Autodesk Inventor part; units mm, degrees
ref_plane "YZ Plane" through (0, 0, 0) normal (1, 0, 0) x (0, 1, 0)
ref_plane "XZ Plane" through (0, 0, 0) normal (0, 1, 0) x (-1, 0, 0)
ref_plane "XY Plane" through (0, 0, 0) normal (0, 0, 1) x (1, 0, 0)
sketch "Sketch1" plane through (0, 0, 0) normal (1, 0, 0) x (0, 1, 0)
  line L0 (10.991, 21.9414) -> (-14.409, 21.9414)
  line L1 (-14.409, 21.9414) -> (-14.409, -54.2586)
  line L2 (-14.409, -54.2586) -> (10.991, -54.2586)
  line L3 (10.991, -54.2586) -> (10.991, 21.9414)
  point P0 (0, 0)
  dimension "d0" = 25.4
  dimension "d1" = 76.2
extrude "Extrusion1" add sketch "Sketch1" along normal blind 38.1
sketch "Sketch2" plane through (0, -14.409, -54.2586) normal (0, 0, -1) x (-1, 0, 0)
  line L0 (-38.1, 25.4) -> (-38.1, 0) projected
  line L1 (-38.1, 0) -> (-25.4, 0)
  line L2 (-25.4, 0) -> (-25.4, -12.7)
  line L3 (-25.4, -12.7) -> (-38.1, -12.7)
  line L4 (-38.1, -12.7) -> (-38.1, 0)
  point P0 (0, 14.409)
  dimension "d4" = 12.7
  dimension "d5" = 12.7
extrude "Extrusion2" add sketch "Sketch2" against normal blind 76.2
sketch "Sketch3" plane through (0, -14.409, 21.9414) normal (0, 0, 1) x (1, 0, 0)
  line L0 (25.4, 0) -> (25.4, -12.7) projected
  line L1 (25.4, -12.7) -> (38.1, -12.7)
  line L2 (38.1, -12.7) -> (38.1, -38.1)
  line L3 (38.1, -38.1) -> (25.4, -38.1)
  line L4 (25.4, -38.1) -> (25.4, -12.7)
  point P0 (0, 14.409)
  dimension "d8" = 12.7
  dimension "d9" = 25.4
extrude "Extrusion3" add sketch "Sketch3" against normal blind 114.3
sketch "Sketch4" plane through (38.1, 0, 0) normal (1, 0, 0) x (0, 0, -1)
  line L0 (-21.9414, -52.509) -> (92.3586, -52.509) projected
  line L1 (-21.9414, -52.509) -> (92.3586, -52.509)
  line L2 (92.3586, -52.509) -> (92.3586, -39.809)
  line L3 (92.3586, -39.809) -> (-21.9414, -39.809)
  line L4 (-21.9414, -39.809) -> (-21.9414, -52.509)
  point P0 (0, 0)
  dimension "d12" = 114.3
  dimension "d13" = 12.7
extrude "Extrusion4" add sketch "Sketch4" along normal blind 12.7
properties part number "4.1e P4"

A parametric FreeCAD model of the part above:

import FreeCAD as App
import Part
import Sketcher
Q = App.Units.Quantity

doc = App.newDocument("Part")
params = doc.addObject("Spreadsheet::Sheet", "Params")
for row, (alias, value) in enumerate([
    ("sketch1_width", "1 in"),
    ("sketch1_height", "3 in"),
    ("pad1_length", "1.5 in"),
    ("sketch2_width", "0.5 in"),
    ("pad2_length", "3 in"),
    ("sketch3_height", "1 in"),
    ("sketch3_width", "0.5 in"),
    ("pad3_length", "4.5 in"),
    ("sketch4_width", "0.5 in"),
    ("sketch4_height", "4.5 in"),
    ("pad4_length", "0.5 in"),
], start=1):
    params.set(f"A{row}", alias)
    params.set(f"B{row}", "=" + value)
    params.setAlias(f"B{row}", alias)

body = doc.addObject("PartDesign::Body", "Body")

# Sketch on YZ plane
sketch1 = body.newObject("Sketcher::SketchObject", "Sketch")
sketch1.AttachmentSupport = (doc.getObject("YZ_Plane"), [""])
sketch1.MapMode = "FlatFace"
sketch1.addGeometry([
    Part.LineSegment(App.Vector(11, -54, 0), App.Vector(11, 22, 0)),
    Part.LineSegment(App.Vector(11, 22, 0), App.Vector(-14, 22, 0)),
    Part.LineSegment(App.Vector(-14, 22, 0), App.Vector(-14, -54, 0)),
    Part.LineSegment(App.Vector(-14, -54, 0), App.Vector(11, -54, 0)),
], False)
sketch1.addConstraint([
    Sketcher.Constraint("Coincident", 0, 2, 1, 1),
    Sketcher.Constraint("Coincident", 1, 2, 2, 1),
    Sketcher.Constraint("Coincident", 2, 2, 3, 1),
    Sketcher.Constraint("Coincident", 3, 2, 0, 1),
    Sketcher.Constraint("Vertical", 0),
    Sketcher.Constraint("Horizontal", 1),
    Sketcher.Constraint("Vertical", 2),
    Sketcher.Constraint("Horizontal", 3),
    Sketcher.Constraint("DistanceX", 1, 2, 1, 1, Q("1 in")),
    Sketcher.Constraint("DistanceY", 0, 1, 0, 2, Q("3 in")),
    Sketcher.Constraint("DistanceX", -1, 1, 0, 2, 10.991),
    Sketcher.Constraint("DistanceY", -1, 1, 0, 2, 21.9414),
])
sketch1.setExpression("Constraints[8]", "Params.sketch1_width")
sketch1.setExpression("Constraints[9]", "Params.sketch1_height")
pad1 = body.newObject("PartDesign::Pad", "Pad")
pad1.Profile = sketch1
pad1.setExpression("Length", "Params.pad1_length")

# Sketch on XY plane
sketch2 = body.newObject("Sketcher::SketchObject", "Sketch001")
sketch2.AttachmentSupport = (doc.getObject("XY_Plane"), [""])
sketch2.MapMode = "FlatFace"
sketch2.AttachmentOffset = App.Placement(App.Vector(0, 0, -54.2586), App.Rotation())
sketch2.addGeometry([
    Part.LineSegment(App.Vector(25, -14, 0), App.Vector(38, -14, 0)),
    Part.LineSegment(App.Vector(38, -14, 0), App.Vector(38, -27, 0)),
    Part.LineSegment(App.Vector(38, -27, 0), App.Vector(25, -27, 0)),
    Part.LineSegment(App.Vector(25, -27, 0), App.Vector(25, -14, 0)),
], False)
sketch2.addConstraint([
    Sketcher.Constraint("Coincident", 0, 2, 1, 1),
    Sketcher.Constraint("Coincident", 1, 2, 2, 1),
    Sketcher.Constraint("Coincident", 2, 2, 3, 1),
    Sketcher.Constraint("Coincident", 3, 2, 0, 1),
    Sketcher.Constraint("Horizontal", 0),
    Sketcher.Constraint("Vertical", 1),
    Sketcher.Constraint("Horizontal", 2),
    Sketcher.Constraint("Vertical", 3),
    Sketcher.Constraint("Equal", 2, 1),
    Sketcher.Constraint("DistanceX", 0, 1, 0, 2, Q("0.5 in")),
    Sketcher.Constraint("DistanceX", -1, 1, 2, 2, Q("1 in")),
    Sketcher.Constraint("DistanceY", 0, 2, -1, 1, 14.409),
])
sketch2.setExpression("Constraints[9]", "Params.sketch2_width")
pad2 = body.newObject("PartDesign::Pad", "Pad001")
pad2.Profile = sketch2
pad2.setExpression("Length", "Params.pad2_length")

# Sketch on XY plane
sketch3 = body.newObject("Sketcher::SketchObject", "Sketch002")
sketch3.AttachmentSupport = (doc.getObject("XY_Plane"), [""])
sketch3.MapMode = "FlatFace"
sketch3.AttachmentOffset = App.Placement(App.Vector(0, 0, 21.9414), App.Rotation())
sketch3.addGeometry([
    Part.LineSegment(App.Vector(38, -27, 0), App.Vector(25, -27, 0)),
    Part.LineSegment(App.Vector(25, -27, 0), App.Vector(25, -53, 0)),
    Part.LineSegment(App.Vector(25, -53, 0), App.Vector(38, -53, 0)),
    Part.LineSegment(App.Vector(38, -53, 0), App.Vector(38, -27, 0)),
], False)
sketch3.addConstraint([
    Sketcher.Constraint("Coincident", 0, 2, 1, 1),
    Sketcher.Constraint("Coincident", 1, 2, 2, 1),
    Sketcher.Constraint("Coincident", 2, 2, 3, 1),
    Sketcher.Constraint("Coincident", 3, 2, 0, 1),
    Sketcher.Constraint("Horizontal", 0),
    Sketcher.Constraint("Vertical", 1),
    Sketcher.Constraint("Horizontal", 2),
    Sketcher.Constraint("Vertical", 3),
    Sketcher.Constraint("DistanceY", 1, 2, 1, 1, Q("1 in")),
    Sketcher.Constraint("DistanceX", 0, 2, 0, 1, Q("0.5 in")),
    Sketcher.Constraint("DistanceX", -1, 1, 0, 2, Q("1 in")),
    Sketcher.Constraint("DistanceY", 0, 2, -1, 1, 27.109),
])
sketch3.setExpression("Constraints[8]", "Params.sketch3_height")
sketch3.setExpression("Constraints[9]", "Params.sketch3_width")
pad3 = body.newObject("PartDesign::Pad", "Pad002")
pad3.Profile = sketch3
pad3.setExpression("Length", "Params.pad3_length")
pad3.Reversed = True

# Sketch on YZ plane
sketch4 = body.newObject("Sketcher::SketchObject", "Sketch003")
sketch4.AttachmentSupport = (doc.getObject("YZ_Plane"), [""])
sketch4.MapMode = "FlatFace"
sketch4.AttachmentOffset = App.Placement(App.Vector(0, 0, 1.5 * 25.4), App.Rotation())
sketch4.addGeometry([
    Part.LineSegment(App.Vector(-40, 22, 0), App.Vector(-53, 22, 0)),
    Part.LineSegment(App.Vector(-53, 22, 0), App.Vector(-53, -92, 0)),
    Part.LineSegment(App.Vector(-53, -92, 0), App.Vector(-40, -92, 0)),
    Part.LineSegment(App.Vector(-40, -92, 0), App.Vector(-40, 22, 0)),
], False)
sketch4.addConstraint([
    Sketcher.Constraint("Coincident", 0, 2, 1, 1),
    Sketcher.Constraint("Coincident", 1, 2, 2, 1),
    Sketcher.Constraint("Coincident", 2, 2, 3, 1),
    Sketcher.Constraint("Coincident", 3, 2, 0, 1),
    Sketcher.Constraint("Horizontal", 0),
    Sketcher.Constraint("Vertical", 1),
    Sketcher.Constraint("Horizontal", 2),
    Sketcher.Constraint("Vertical", 3),
    Sketcher.Constraint("DistanceX", 0, 2, 0, 1, Q("0.5 in")),
    Sketcher.Constraint("DistanceY", 1, 2, 1, 1, Q("4.5 in")),
    Sketcher.Constraint("DistanceX", 0, 2, -1, 1, 52.509),
    Sketcher.Constraint("DistanceY", -1, 1, 0, 2, 21.9414),
])
sketch4.setExpression("Constraints[8]", "Params.sketch4_width")
sketch4.setExpression("Constraints[9]", "Params.sketch4_height")
pad4 = body.newObject("PartDesign::Pad", "Pad003")
pad4.Profile = sketch4
pad4.setExpression("Length", "Params.pad4_length")

doc.recompute()
